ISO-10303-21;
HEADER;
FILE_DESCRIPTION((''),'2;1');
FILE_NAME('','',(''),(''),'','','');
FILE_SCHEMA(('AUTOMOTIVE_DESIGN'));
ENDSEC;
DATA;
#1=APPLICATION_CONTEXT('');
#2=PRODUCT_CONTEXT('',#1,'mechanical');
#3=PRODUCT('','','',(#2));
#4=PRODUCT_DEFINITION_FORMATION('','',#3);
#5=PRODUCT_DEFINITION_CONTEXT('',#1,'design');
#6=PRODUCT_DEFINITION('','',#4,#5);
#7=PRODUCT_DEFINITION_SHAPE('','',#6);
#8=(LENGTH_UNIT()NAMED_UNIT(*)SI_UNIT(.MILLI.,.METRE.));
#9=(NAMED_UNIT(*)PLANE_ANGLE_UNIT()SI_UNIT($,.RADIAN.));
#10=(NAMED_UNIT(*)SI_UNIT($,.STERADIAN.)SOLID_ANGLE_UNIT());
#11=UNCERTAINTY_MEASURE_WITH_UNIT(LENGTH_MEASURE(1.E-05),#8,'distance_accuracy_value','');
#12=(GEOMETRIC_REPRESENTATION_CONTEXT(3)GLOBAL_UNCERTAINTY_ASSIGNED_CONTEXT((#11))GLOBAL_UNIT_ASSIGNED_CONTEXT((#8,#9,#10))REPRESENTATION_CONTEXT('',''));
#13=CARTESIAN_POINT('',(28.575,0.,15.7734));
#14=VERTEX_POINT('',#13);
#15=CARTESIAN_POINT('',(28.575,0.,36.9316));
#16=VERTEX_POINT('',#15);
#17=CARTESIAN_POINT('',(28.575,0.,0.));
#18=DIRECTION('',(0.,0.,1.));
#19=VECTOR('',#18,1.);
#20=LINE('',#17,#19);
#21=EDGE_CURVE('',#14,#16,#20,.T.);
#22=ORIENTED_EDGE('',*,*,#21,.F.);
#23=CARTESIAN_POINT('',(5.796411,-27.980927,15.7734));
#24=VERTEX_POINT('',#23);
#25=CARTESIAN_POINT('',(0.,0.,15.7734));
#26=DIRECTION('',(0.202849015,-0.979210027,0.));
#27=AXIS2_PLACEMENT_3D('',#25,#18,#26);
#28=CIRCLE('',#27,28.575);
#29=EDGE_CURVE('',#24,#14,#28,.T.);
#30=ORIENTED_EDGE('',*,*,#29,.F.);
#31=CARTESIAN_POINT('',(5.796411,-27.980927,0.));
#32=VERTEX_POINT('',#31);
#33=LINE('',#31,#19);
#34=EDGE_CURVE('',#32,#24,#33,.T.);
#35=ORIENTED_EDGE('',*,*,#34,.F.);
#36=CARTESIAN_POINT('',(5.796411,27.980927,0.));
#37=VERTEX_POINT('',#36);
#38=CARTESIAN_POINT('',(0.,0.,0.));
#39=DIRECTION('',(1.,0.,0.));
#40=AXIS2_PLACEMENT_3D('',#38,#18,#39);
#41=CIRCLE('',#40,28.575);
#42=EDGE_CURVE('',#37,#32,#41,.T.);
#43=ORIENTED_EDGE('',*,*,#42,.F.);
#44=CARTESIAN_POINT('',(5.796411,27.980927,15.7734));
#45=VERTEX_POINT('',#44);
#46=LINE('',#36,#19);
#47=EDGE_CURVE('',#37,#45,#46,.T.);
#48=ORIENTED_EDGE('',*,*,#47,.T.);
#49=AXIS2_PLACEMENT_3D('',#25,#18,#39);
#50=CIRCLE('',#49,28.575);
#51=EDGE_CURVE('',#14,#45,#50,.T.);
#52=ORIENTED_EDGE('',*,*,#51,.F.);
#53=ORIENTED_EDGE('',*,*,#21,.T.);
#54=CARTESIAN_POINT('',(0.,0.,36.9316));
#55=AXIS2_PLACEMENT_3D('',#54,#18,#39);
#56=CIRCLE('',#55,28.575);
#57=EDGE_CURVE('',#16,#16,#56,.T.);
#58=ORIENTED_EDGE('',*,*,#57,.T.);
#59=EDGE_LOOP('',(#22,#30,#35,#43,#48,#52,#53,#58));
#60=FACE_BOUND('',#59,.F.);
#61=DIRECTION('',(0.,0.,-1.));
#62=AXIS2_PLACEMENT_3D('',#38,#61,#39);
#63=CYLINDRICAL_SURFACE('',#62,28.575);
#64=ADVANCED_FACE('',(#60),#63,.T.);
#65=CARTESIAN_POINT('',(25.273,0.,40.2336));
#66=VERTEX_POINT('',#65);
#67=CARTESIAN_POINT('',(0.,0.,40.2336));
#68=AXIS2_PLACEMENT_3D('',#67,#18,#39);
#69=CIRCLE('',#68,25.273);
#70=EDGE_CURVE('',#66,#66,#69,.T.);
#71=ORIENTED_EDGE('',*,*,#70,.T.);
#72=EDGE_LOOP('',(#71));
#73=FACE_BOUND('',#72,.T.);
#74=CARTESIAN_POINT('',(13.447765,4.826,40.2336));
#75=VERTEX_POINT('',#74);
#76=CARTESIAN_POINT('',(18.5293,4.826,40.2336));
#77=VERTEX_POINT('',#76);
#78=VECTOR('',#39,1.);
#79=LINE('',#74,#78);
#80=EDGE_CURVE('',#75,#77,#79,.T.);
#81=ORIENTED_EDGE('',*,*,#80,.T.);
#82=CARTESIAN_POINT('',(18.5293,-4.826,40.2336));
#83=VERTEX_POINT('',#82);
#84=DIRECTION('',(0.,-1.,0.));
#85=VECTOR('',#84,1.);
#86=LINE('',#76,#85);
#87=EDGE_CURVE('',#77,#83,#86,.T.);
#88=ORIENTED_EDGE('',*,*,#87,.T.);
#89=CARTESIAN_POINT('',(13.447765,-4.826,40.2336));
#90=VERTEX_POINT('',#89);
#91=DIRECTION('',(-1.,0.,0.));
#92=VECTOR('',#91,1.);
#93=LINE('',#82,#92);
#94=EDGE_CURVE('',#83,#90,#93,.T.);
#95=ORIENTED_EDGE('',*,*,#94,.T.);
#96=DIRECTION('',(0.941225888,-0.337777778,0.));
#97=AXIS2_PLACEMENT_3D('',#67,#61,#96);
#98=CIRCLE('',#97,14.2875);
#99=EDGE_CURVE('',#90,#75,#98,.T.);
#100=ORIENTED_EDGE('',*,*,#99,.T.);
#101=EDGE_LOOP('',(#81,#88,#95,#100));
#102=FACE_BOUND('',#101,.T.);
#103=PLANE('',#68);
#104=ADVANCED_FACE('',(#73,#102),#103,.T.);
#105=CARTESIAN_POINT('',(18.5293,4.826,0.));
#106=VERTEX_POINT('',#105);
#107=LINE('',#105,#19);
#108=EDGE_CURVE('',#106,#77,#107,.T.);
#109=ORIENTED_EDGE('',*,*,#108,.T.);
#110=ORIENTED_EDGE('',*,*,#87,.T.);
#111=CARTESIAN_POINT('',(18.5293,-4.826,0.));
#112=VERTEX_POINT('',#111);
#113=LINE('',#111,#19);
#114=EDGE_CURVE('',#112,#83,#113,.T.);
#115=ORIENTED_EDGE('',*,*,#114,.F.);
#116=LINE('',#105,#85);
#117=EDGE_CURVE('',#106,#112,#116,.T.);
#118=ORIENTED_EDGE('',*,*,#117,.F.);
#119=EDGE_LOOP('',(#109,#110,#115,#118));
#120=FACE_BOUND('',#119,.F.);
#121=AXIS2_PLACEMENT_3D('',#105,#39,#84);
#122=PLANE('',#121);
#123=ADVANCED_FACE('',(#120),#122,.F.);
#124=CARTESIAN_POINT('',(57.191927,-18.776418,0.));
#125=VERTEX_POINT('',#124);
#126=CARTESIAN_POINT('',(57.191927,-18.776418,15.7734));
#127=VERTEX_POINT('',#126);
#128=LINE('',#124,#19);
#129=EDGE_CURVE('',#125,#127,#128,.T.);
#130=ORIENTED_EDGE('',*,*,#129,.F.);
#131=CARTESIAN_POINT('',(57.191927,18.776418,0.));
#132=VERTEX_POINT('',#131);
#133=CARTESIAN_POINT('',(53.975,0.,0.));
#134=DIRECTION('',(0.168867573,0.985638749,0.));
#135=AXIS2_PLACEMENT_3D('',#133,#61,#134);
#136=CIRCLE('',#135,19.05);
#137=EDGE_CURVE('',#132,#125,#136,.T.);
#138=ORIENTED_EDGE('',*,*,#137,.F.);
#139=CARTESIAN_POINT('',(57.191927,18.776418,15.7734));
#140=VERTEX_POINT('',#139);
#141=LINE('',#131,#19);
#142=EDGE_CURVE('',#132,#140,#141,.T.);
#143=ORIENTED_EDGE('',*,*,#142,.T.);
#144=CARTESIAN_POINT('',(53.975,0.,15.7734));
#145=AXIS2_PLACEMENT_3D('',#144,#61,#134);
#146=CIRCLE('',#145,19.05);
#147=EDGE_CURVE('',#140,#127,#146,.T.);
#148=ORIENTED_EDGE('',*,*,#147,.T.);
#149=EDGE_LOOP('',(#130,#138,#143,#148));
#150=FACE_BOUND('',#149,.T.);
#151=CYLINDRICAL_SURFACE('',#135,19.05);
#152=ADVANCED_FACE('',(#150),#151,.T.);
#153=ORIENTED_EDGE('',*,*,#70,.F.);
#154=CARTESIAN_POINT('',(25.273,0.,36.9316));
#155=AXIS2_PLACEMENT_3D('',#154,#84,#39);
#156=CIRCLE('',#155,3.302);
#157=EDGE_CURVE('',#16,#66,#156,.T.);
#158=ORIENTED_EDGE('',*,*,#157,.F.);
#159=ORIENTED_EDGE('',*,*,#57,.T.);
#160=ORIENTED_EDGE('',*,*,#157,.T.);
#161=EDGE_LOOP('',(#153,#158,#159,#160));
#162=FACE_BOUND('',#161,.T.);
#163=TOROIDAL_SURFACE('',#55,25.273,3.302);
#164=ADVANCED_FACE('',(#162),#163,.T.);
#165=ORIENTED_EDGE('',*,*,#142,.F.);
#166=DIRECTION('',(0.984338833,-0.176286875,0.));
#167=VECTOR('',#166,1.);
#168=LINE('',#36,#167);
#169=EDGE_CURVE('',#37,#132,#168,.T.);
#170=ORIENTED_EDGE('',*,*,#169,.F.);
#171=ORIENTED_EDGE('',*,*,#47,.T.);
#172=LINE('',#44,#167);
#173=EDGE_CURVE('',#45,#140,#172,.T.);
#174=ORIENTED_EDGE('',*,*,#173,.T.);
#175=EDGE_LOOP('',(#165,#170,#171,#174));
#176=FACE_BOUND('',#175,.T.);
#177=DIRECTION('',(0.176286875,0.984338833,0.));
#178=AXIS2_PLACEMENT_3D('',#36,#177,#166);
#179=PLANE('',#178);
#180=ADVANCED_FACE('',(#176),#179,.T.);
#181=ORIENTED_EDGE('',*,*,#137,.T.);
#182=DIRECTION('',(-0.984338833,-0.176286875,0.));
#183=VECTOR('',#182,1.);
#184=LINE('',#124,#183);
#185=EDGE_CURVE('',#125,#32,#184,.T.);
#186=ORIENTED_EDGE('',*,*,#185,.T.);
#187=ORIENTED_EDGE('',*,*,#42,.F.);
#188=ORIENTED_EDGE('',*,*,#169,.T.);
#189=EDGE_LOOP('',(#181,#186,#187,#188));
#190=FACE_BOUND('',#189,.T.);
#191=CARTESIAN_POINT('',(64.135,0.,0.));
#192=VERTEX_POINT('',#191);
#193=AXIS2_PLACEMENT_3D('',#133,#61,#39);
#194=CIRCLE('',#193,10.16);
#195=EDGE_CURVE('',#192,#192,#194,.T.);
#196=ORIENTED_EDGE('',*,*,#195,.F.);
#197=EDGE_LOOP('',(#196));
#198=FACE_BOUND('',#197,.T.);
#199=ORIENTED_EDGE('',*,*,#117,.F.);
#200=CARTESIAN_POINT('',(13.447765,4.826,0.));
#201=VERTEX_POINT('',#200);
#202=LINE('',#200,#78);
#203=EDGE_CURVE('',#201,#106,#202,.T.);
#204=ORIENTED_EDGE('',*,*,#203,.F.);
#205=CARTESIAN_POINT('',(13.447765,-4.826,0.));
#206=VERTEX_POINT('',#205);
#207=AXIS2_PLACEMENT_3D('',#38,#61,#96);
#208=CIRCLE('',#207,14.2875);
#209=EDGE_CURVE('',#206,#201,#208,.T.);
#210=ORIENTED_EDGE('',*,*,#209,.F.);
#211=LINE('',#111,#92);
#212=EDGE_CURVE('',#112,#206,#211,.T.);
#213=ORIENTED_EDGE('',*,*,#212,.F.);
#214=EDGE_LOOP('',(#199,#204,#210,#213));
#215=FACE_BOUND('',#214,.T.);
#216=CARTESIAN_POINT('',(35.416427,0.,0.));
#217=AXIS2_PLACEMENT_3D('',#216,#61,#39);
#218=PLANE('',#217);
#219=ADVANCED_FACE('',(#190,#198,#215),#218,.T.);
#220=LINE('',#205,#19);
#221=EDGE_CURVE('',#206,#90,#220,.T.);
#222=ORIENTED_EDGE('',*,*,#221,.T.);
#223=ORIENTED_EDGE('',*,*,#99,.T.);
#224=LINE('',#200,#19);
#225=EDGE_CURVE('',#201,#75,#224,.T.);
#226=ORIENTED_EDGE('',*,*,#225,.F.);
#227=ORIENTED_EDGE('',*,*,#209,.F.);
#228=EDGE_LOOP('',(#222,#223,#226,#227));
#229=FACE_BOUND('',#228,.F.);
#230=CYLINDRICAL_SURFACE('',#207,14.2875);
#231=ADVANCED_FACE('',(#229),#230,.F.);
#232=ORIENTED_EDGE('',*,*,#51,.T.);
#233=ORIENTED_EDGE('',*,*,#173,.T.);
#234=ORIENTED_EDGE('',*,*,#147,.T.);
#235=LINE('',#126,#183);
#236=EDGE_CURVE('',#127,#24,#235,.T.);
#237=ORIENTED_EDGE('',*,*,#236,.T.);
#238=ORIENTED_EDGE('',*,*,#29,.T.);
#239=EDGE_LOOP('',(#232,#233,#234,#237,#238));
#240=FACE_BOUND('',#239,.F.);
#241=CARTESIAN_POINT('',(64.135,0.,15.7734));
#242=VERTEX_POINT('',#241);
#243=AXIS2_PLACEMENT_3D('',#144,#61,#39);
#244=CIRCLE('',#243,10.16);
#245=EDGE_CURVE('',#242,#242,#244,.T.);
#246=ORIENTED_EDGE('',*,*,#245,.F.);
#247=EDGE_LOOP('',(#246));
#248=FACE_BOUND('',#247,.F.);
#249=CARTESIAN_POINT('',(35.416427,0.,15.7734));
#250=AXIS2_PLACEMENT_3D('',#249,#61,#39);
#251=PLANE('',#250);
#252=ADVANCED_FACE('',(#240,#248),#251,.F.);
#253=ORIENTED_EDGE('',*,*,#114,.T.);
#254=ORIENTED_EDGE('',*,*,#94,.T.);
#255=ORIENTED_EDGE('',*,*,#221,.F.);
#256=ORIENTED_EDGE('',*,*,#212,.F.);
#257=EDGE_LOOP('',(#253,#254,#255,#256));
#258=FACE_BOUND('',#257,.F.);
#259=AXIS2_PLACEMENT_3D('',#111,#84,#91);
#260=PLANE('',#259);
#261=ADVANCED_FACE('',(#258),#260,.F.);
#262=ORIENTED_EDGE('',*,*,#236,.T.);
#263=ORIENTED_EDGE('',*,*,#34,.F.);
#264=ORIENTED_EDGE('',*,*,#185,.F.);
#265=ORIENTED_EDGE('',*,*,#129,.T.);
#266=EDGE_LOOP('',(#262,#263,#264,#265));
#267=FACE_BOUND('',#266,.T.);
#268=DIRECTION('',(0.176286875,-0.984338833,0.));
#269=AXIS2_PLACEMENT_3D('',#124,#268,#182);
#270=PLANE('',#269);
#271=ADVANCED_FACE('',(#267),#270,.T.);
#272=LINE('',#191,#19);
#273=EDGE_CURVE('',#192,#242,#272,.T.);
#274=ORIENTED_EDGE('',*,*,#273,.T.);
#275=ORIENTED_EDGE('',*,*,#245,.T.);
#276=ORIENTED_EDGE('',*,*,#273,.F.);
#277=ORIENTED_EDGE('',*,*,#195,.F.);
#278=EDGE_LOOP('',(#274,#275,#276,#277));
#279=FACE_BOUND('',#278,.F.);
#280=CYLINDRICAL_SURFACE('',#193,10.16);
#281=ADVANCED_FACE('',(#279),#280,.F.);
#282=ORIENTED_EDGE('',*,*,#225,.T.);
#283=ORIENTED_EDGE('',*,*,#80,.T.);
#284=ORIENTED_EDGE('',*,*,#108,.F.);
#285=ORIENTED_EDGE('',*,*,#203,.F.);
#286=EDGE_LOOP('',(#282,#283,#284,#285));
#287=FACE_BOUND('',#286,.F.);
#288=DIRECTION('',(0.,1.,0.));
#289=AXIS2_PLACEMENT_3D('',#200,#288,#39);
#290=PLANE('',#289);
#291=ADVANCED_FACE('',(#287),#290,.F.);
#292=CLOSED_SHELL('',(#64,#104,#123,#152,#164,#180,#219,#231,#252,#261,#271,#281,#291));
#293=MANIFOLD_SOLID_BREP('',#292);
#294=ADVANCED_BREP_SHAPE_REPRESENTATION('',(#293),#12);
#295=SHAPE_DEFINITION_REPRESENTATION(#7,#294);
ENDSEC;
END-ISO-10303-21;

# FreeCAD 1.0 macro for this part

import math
import FreeCAD as App
import Part
import Sketcher
Q = App.Units.Quantity


def edges_at(feature, points):
    """Names of the edges that pass closest to the given points."""
    edges = feature.Shape.Edges
    near = lambda p: min(range(len(edges)), key=lambda i: edges[i].distToShape(Part.Vertex(*p))[0])
    return sorted({f"Edge{near(p) + 1}" for p in points})

doc = App.newDocument("Part")
body = doc.addObject("PartDesign::Body", "Body")

sketch1 = doc.addObject("Sketcher::SketchObject", "Sketch")
body.addObject(sketch1)
sketch1.AttachmentSupport = (doc.XY_Plane, [""])
sketch1.MapMode = "FlatFace"
sketch1.addGeometry(Part.Circle(App.Vector(0, 0, 0), App.Vector(0, 0, 1), 29), False)
sketch1.addGeometry(Part.LineSegment(App.Vector(19, -5, 0), App.Vector(13, -5, 0)), False)
sketch1.addGeometry(Part.ArcOfCircle(Part.Circle(App.Vector(0, 0, 0), App.Vector(0, 0, 1), 14), math.radians(20), math.radians(340)), False)
sketch1.addGeometry(Part.LineSegment(App.Vector(13, 5, 0), App.Vector(19, 5, 0)), False)
sketch1.addGeometry(Part.LineSegment(App.Vector(19, 5, 0), App.Vector(19, -5, 0)), False)
sketch1.addConstraint(Sketcher.Constraint("Coincident", 1, 2, 2, 2))
sketch1.addConstraint(Sketcher.Constraint("Coincident", 2, 1, 3, 1))
sketch1.addConstraint(Sketcher.Constraint("Coincident", 3, 2, 4, 1))
sketch1.addConstraint(Sketcher.Constraint("Coincident", 4, 2, 1, 1))
sketch1.addConstraint(Sketcher.Constraint("Horizontal", 1))
sketch1.addConstraint(Sketcher.Constraint("Horizontal", 3))
sketch1.addConstraint(Sketcher.Constraint("Vertical", 4))
sketch1.addConstraint(Sketcher.Constraint("Coincident", 0, 3, -1, 1))
sketch1.addConstraint(Sketcher.Constraint("Coincident", 2, 3, -1, 1))
sketch1.addConstraint(Sketcher.Constraint("Vertical", 1, 2, 2, 1))
sketch1.addConstraint(Sketcher.Constraint("Diameter", 0, Q("2.25 in")))
sketch1.addConstraint(Sketcher.Constraint("Radius", 2, Q("0.5625 in")))
sketch1.addConstraint(Sketcher.Constraint("DistanceY", 4, 2, 4, 1, Q("0.38 in")))
sketch1.addConstraint(Sketcher.Constraint("DistanceX", -1, 1, 3, 2, Q("0.7295 in")))
pad1 = doc.addObject("PartDesign::Pad", "Pad")
body.addObject(pad1)
pad1.Profile = sketch1
pad1.Length = Q("1.584 in")
doc.recompute()

fillet = doc.addObject("PartDesign::Fillet", "Fillet")
body.addObject(fillet)
fillet.Base = (pad1, edges_at(pad1, [(-28.575, 0, 40.234)]))
fillet.Radius = Q("0.13 in")

sketch2 = doc.addObject("Sketcher::SketchObject", "Sketch001")
body.addObject(sketch2)
sketch2.AttachmentSupport = (doc.XY_Plane, [""])
sketch2.MapMode = "FlatFace"
sketch2.addGeometry(Part.LineSegment(App.Vector(6, 28, 0), App.Vector(57, 19, 0)), False)
sketch2.addGeometry(Part.ArcOfCircle(Part.Circle(App.Vector(54, 0, 0), App.Vector(0, 0, 1), 19), math.radians(-80), math.radians(80)), False)
sketch2.addGeometry(Part.LineSegment(App.Vector(57, -19, 0), App.Vector(6, -28, 0)), False)
sketch2.addGeometry(Part.ArcOfCircle(Part.Circle(App.Vector(0, 0, 0), App.Vector(0, 0, 1), 29), math.radians(-78), math.radians(0)), False)
sketch2.addGeometry(Part.ArcOfCircle(Part.Circle(App.Vector(0, 0, 0), App.Vector(0, 0, 1), 29), math.radians(0), math.radians(78)), False)
sketch2.addGeometry(Part.Circle(App.Vector(54, 0, 0), App.Vector(0, 0, 1), 10), False)
sketch2.addConstraint(Sketcher.Constraint("Coincident", 0, 2, 1, 2))
sketch2.addConstraint(Sketcher.Constraint("Coincident", 1, 1, 2, 1))
sketch2.addConstraint(Sketcher.Constraint("Coincident", 2, 2, 3, 1))
sketch2.addConstraint(Sketcher.Constraint("Tangent", 3, 2, 4, 1))
sketch2.addConstraint(Sketcher.Constraint("Coincident", 4, 2, 0, 1))
sketch2.addConstraint(Sketcher.Constraint("Coincident", 3, 3, -1, 1))
sketch2.addConstraint(Sketcher.Constraint("Coincident", 5, 3, 1, 3))
sketch2.addConstraint(Sketcher.Constraint("Equal", 3, 4))
sketch2.addConstraint(Sketcher.Constraint("Symmetric", 0, 2, 1, 1, -1))
sketch2.addConstraint(Sketcher.Constraint("PointOnObject", 3, 2, -1))
sketch2.addConstraint(Sketcher.Constraint("Vertical", 2, 2, 4, 2))
sketch2.addConstraint(Sketcher.Constraint("Diameter", 5, Q("0.8 in")))
sketch2.addConstraint(Sketcher.Constraint("Radius", 1, Q("0.75 in")))
sketch2.addConstraint(Sketcher.Constraint("Radius", 3, Q("1.125 in")))
sketch2.addConstraint(Sketcher.Constraint("DistanceX", 3, 2, 1, 3, Q("1 in")))
sketch2.addConstraint(Sketcher.Constraint("DistanceY", -1, 1, 0, 2, Q("18.776418 mm")))
sketch2.addConstraint(Sketcher.Constraint("DistanceX", -1, 1, 2, 2, Q("5.796411 mm")))
pad2 = doc.addObject("PartDesign::Pad", "Pad001")
body.addObject(pad2)
pad2.Profile = sketch2
pad2.Length = Q("0.621 in")

doc.recompute()
